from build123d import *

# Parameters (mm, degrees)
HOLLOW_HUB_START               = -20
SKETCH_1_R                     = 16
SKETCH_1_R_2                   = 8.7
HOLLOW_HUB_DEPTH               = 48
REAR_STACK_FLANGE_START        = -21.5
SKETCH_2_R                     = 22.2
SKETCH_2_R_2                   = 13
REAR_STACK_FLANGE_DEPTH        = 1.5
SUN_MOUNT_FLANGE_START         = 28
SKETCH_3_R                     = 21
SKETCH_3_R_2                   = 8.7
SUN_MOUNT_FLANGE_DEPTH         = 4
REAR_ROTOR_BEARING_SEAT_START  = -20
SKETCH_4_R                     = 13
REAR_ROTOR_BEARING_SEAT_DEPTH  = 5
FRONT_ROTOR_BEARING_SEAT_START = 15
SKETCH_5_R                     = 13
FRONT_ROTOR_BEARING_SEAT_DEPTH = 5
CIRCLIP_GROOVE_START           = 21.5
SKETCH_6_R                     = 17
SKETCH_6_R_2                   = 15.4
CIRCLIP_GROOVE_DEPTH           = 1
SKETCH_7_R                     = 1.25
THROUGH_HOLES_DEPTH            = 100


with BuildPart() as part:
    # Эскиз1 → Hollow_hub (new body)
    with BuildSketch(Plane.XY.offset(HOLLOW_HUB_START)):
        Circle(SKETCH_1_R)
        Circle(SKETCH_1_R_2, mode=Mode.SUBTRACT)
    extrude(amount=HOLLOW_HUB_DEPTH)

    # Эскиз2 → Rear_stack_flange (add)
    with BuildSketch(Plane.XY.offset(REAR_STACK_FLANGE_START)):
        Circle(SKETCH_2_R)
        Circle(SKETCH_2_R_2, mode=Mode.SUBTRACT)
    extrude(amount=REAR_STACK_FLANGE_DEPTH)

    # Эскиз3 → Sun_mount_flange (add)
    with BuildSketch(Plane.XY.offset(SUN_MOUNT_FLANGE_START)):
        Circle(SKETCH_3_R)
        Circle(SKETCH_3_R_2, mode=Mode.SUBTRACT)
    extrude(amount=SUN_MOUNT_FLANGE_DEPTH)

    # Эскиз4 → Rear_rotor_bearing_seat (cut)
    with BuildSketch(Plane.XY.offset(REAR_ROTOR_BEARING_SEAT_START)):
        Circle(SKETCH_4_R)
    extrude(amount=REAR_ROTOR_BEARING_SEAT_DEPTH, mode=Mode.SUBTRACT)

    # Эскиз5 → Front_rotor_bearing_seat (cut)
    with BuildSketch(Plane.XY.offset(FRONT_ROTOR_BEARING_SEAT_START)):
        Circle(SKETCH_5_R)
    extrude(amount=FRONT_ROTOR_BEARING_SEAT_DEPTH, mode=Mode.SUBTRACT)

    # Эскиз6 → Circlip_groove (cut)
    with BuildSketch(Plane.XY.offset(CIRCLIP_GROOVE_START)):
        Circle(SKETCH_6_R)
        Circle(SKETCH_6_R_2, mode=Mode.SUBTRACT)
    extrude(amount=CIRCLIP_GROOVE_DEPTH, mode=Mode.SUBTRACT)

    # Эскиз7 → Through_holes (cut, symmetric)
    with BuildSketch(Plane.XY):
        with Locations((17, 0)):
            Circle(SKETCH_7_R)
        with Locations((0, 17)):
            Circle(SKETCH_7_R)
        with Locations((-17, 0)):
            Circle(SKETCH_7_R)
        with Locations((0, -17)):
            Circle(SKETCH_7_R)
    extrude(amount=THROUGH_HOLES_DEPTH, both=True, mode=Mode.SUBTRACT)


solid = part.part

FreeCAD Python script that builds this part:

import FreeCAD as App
import Part
import Sketcher
from FreeCAD import Vector
Q = App.Units.Quantity

doc = App.newDocument("Part")
body = doc.addObject("PartDesign::Body", "Body")

# Sketch on XY plane
sketch1 = doc.addObject("Sketcher::SketchObject", "Sketch")
body.addObject(sketch1)
sketch1.AttachmentSupport = (doc.XY_Plane, [""])
sketch1.MapMode = "FlatFace"
sketch1.AttachmentOffset = App.Placement(Vector(0, 0, -20), App.Rotation())
sketch1.addGeometry(Part.Circle(Vector(0, 0, 0), Vector(0, 0, 1), 16), False)
sketch1.addGeometry(Part.Circle(Vector(0, 0, 0), Vector(0, 0, 1), 9), False)
sketch1.addConstraint(Sketcher.Constraint("Coincident", 0, 3, -1, 1))
sketch1.addConstraint(Sketcher.Constraint("Coincident", 1, 3, -1, 1))
sketch1.addConstraint(Sketcher.Constraint("Diameter", 0, Q("32 mm")))
sketch1.addConstraint(Sketcher.Constraint("Diameter", 1, Q("17.4 mm")))
pad1 = doc.addObject("PartDesign::Pad", "Pad")
body.addObject(pad1)
pad1.Profile = sketch1
pad1.Length = 48

# Sketch on XY plane
sketch2 = doc.addObject("Sketcher::SketchObject", "Sketch001")
body.addObject(sketch2)
sketch2.AttachmentSupport = (doc.XY_Plane, [""])
sketch2.MapMode = "FlatFace"
sketch2.AttachmentOffset = App.Placement(Vector(0, 0, -21.5), App.Rotation())
sketch2.addGeometry(Part.Circle(Vector(0, 0, 0), Vector(0, 0, 1), 22), False)
sketch2.addGeometry(Part.Circle(Vector(0, 0, 0), Vector(0, 0, 1), 13), False)
sketch2.addConstraint(Sketcher.Constraint("Coincident", 0, 3, -1, 1))
sketch2.addConstraint(Sketcher.Constraint("Coincident", 1, 3, -1, 1))
sketch2.addConstraint(Sketcher.Constraint("Diameter", 1, Q("26 mm")))
sketch2.addConstraint(Sketcher.Constraint("Diameter", 0, Q("44.4 mm")))
pad2 = doc.addObject("PartDesign::Pad", "Pad001")
body.addObject(pad2)
pad2.Profile = sketch2
pad2.Length = 1.5

# Sketch on XY plane
sketch3 = doc.addObject("Sketcher::SketchObject", "Sketch002")
body.addObject(sketch3)
sketch3.AttachmentSupport = (doc.XY_Plane, [""])
sketch3.MapMode = "FlatFace"
sketch3.AttachmentOffset = App.Placement(Vector(0, 0, 28), App.Rotation())
sketch3.addGeometry(Part.Circle(Vector(0, 0, 0), Vector(0, 0, 1), 21), False)
sketch3.addGeometry(Part.Circle(Vector(0, 0, 0), Vector(0, 0, 1), 9), False)
sketch3.addConstraint(Sketcher.Constraint("Coincident", 0, 3, -1, 1))
sketch3.addConstraint(Sketcher.Constraint("Coincident", 1, 3, -1, 1))
sketch3.addConstraint(Sketcher.Constraint("Diameter", 0, Q("42 mm")))
sketch3.addConstraint(Sketcher.Constraint("Diameter", 1, Q("17.4 mm")))
pad3 = doc.addObject("PartDesign::Pad", "Pad002")
body.addObject(pad3)
pad3.Profile = sketch3
pad3.Length = 4

# Sketch on XY plane
sketch4 = doc.addObject("Sketcher::SketchObject", "Sketch003")
body.addObject(sketch4)
sketch4.AttachmentSupport = (doc.XY_Plane, [""])
sketch4.MapMode = "FlatFace"
sketch4.AttachmentOffset = App.Placement(Vector(0, 0, -20), App.Rotation())
sketch4.addGeometry(Part.Circle(Vector(0, 0, 0), Vector(0, 0, 1), 13), False)
sketch4.addConstraint(Sketcher.Constraint("Coincident", 0, 3, -1, 1))
sketch4.addConstraint(Sketcher.Constraint("Diameter", 0, Q("26 mm")))
pocket1 = doc.addObject("PartDesign::Pocket", "Pocket")
body.addObject(pocket1)
pocket1.Profile = sketch4
pocket1.Length = 5
pocket1.Reversed = True

# Sketch on XY plane
sketch5 = doc.addObject("Sketcher::SketchObject", "Sketch004")
body.addObject(sketch5)
sketch5.AttachmentSupport = (doc.XY_Plane, [""])
sketch5.MapMode = "FlatFace"
sketch5.AttachmentOffset = App.Placement(Vector(0, 0, 15), App.Rotation())
sketch5.addGeometry(Part.Circle(Vector(0, 0, 0), Vector(0, 0, 1), 13), False)
sketch5.addConstraint(Sketcher.Constraint("Coincident", 0, 3, -1, 1))
sketch5.addConstraint(Sketcher.Constraint("Diameter", 0, Q("26 mm")))
pocket2 = doc.addObject("PartDesign::Pocket", "Pocket001")
body.addObject(pocket2)
pocket2.Profile = sketch5
pocket2.Length = 5
pocket2.Reversed = True

# Sketch on XY plane
sketch6 = doc.addObject("Sketcher::SketchObject", "Sketch005")
body.addObject(sketch6)
sketch6.AttachmentSupport = (doc.XY_Plane, [""])
sketch6.MapMode = "FlatFace"
sketch6.AttachmentOffset = App.Placement(Vector(0, 0, 21.5), App.Rotation())
sketch6.addGeometry(Part.Circle(Vector(0, 0, 0), Vector(0, 0, 1), 17), False)
sketch6.addGeometry(Part.Circle(Vector(0, 0, 0), Vector(0, 0, 1), 15), False)
sketch6.addConstraint(Sketcher.Constraint("Coincident", 0, 3, -1, 1))
sketch6.addConstraint(Sketcher.Constraint("Coincident", 1, 3, -1, 1))
sketch6.addConstraint(Sketcher.Constraint("Diameter", 0, Q("34 mm")))
sketch6.addConstraint(Sketcher.Constraint("Diameter", 1, Q("30.8 mm")))
pocket3 = doc.addObject("PartDesign::Pocket", "Pocket002")
body.addObject(pocket3)
pocket3.Profile = sketch6
pocket3.Length = 1
pocket3.Reversed = True

# Sketch on XY plane
sketch7 = doc.addObject("Sketcher::SketchObject", "Sketch006")
body.addObject(sketch7)
sketch7.AttachmentSupport = (doc.XY_Plane, [""])
sketch7.MapMode = "FlatFace"
sketch7.addGeometry(Part.Circle(Vector(17, 0, 0), Vector(0, 0, 1), 1.2), False)
sketch7.addGeometry(Part.Circle(Vector(0, 17, 0), Vector(0, 0, 1), 1.2), False)
sketch7.addGeometry(Part.Circle(Vector(-17, 0, 0), Vector(0, 0, 1), 1.2), False)
sketch7.addGeometry(Part.Circle(Vector(0, -17, 0), Vector(0, 0, 1), 1.2), False)
sketch7.addConstraint(Sketcher.Constraint("Equal", 0, 1))
sketch7.addConstraint(Sketcher.Constraint("Equal", 1, 2))
sketch7.addConstraint(Sketcher.Constraint("Equal", 2, 3))
sketch7.addConstraint(Sketcher.Constraint("Symmetric", 0, 3, 2, 3, -1, 1))
sketch7.addConstraint(Sketcher.Constraint("Symmetric", 1, 3, 3, 3, -1, 1))
sketch7.addConstraint(Sketcher.Constraint("PointOnObject", 0, 3, -1))
sketch7.addConstraint(Sketcher.Constraint("PointOnObject", 1, 3, -2))
sketch7.addConstraint(Sketcher.Constraint("Diameter", 0, Q("2.5 mm")))
sketch7.addConstraint(Sketcher.Constraint("DistanceX", -1, 1, 0, 3, Q("17 mm")))
sketch7.addConstraint(Sketcher.Constraint("DistanceY", -1, 1, 1, 3, Q("17 mm")))
pocket4 = doc.addObject("PartDesign::Pocket", "Pocket003")
body.addObject(pocket4)
pocket4.Profile = sketch7
pocket4.Length = 200
pocket4.Midplane = True

doc.recompute()
